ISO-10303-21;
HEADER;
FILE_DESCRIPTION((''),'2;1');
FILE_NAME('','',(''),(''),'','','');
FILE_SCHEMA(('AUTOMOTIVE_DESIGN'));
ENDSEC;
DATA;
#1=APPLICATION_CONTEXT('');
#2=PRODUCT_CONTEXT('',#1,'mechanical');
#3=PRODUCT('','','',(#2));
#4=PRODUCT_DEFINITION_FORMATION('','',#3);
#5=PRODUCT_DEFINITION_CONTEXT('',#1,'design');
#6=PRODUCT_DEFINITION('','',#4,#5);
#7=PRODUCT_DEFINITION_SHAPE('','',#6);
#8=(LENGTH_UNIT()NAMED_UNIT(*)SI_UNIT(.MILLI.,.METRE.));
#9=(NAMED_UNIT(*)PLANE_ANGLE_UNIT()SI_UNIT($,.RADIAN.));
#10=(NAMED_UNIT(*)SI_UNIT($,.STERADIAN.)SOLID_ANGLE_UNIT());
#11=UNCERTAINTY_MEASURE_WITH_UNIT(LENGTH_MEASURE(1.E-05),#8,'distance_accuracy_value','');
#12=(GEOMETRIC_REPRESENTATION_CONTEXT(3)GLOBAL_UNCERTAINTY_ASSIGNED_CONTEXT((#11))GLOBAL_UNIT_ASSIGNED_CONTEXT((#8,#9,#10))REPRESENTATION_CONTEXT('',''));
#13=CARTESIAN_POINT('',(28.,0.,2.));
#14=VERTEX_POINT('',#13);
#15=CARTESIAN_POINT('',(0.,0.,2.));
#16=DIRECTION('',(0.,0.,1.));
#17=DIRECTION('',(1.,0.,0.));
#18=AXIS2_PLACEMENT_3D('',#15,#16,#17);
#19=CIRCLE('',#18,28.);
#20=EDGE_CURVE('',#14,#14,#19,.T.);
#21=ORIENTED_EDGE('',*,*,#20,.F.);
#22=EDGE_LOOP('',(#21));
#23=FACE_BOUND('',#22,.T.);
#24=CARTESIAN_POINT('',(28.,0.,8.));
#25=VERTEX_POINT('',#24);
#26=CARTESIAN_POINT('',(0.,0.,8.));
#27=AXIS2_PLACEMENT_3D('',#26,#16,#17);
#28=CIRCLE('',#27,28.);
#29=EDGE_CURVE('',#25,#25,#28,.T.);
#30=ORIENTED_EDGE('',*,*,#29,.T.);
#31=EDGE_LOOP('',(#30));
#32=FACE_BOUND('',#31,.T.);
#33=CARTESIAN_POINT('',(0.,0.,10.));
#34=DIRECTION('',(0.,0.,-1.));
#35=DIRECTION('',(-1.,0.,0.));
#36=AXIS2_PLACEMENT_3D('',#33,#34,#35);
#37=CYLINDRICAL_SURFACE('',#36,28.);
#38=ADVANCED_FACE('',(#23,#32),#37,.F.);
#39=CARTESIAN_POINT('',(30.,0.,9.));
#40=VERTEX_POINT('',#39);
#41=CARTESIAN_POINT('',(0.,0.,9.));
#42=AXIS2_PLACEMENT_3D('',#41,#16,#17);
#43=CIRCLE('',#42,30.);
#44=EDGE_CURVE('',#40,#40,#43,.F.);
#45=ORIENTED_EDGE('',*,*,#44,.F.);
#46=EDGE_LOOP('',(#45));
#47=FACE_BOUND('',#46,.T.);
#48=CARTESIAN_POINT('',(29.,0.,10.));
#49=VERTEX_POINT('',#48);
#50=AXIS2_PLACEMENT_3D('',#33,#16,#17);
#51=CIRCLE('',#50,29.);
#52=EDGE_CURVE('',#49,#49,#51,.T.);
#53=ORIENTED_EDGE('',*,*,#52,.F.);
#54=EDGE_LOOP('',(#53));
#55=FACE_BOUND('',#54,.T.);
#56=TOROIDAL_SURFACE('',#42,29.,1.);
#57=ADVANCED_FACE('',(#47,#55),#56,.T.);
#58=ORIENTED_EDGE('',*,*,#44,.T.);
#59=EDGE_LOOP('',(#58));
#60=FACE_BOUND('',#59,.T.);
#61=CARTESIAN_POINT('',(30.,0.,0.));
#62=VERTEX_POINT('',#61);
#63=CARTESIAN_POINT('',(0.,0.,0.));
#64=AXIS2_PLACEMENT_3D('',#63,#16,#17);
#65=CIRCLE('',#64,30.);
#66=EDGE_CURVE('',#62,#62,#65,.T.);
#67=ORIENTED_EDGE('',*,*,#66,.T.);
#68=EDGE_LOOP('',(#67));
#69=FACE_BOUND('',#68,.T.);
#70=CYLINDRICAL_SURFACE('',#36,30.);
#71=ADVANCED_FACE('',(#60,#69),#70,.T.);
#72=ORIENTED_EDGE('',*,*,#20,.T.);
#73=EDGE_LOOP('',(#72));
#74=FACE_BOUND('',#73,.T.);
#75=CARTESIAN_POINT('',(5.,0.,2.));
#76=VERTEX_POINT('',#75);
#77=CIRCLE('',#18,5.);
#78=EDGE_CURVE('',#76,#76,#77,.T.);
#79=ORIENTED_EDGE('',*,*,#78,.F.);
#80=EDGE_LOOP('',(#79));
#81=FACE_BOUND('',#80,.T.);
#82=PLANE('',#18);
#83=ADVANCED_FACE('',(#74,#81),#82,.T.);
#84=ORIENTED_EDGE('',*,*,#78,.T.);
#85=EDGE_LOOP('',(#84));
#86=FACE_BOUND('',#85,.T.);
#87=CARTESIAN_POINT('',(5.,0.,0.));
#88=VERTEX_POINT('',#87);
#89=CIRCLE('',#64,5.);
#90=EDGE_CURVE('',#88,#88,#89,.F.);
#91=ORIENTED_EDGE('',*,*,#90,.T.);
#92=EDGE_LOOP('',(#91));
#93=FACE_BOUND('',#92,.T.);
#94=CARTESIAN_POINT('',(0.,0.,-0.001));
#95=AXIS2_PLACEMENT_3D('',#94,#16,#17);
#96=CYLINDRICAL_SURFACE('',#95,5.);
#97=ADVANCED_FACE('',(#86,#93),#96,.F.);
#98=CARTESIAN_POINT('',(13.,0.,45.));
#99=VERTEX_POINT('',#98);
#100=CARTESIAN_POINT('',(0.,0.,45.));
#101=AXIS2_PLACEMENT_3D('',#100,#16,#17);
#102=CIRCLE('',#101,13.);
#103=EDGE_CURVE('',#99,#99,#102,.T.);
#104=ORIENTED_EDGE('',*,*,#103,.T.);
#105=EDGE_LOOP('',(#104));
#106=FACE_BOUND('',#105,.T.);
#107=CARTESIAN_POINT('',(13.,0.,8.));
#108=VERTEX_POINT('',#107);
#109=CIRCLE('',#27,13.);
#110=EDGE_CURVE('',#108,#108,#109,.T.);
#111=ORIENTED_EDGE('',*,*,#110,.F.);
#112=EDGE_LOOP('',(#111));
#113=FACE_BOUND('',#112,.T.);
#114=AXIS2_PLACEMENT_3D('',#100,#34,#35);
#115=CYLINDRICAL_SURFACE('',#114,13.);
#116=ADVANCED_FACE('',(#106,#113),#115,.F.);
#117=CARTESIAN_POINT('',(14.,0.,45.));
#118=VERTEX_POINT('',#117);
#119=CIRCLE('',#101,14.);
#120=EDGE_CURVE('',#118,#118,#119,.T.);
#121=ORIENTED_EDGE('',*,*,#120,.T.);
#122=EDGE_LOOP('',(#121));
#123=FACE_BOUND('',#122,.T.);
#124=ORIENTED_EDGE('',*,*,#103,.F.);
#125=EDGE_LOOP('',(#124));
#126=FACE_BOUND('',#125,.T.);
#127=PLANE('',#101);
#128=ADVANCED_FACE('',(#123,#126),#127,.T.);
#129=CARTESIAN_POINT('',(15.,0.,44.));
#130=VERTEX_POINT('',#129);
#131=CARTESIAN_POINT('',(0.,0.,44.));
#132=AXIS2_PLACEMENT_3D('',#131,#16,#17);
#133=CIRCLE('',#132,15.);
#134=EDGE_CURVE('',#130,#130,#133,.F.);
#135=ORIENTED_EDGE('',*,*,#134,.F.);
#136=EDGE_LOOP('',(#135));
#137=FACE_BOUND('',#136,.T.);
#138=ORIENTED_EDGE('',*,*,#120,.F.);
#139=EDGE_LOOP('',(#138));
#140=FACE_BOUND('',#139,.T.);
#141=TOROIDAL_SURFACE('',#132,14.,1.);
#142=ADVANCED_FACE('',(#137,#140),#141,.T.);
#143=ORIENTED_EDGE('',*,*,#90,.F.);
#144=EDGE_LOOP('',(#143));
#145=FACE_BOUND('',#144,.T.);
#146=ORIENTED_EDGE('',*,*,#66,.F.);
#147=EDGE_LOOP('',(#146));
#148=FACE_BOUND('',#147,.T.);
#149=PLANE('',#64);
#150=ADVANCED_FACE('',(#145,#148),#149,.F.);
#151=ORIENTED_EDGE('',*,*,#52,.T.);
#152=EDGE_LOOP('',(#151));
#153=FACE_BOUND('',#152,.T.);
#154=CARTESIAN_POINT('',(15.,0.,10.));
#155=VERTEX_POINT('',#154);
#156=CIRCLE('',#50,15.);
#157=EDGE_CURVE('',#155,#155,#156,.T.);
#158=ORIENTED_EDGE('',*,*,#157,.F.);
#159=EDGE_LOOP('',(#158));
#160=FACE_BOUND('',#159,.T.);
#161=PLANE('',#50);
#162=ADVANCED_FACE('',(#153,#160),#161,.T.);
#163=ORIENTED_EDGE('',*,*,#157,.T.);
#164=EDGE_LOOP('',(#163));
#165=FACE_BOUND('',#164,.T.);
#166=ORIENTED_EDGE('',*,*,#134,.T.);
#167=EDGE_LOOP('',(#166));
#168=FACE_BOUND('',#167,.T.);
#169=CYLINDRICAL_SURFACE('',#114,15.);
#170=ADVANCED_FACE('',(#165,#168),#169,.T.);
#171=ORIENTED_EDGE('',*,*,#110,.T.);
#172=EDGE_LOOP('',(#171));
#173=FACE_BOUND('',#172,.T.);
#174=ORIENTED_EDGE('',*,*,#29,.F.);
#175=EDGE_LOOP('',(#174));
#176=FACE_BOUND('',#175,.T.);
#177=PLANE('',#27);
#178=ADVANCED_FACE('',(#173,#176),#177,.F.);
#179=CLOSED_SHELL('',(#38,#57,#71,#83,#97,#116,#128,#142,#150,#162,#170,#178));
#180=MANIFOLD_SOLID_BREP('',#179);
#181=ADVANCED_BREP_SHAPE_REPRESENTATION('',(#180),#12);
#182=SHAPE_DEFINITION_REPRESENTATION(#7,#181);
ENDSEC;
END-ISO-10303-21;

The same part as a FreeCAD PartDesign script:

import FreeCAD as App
import Part
import Sketcher
from FreeCAD import Vector
Q = App.Units.Quantity


def edges_at(feature, points):
    """Names of the edges that pass closest to the given points."""
    edges = feature.Shape.Edges
    near = lambda p: min(range(len(edges)), key=lambda i: edges[i].distToShape(Part.Vertex(*p))[0])
    return sorted({f"Edge{near(p) + 1}" for p in points})


def faces_at(feature, points):
    """Names of the faces that lie closest to the given points."""
    faces = feature.Shape.Faces
    near = lambda p: min(range(len(faces)), key=lambda i: faces[i].distToShape(Part.Vertex(*p))[0])
    return sorted({f"Face{near(p) + 1}" for p in points})

doc = App.newDocument("Part")
body = doc.addObject("PartDesign::Body", "Body")

sketch1 = body.newObject("Sketcher::SketchObject", "Sketch")
sketch1.AttachmentSupport = (doc.getObject("XY_Plane"), [""])
sketch1.MapMode = "FlatFace"
sketch1.addGeometry(Part.Circle(Vector(0, 0, 0), Vector(0, 0, 1), 30), False)
sketch1.addConstraint(Sketcher.Constraint("Coincident", 0, 3, -1, 1))
sketch1.addConstraint(Sketcher.Constraint("Diameter", 0, Q("60 mm")))
pad1 = body.newObject("PartDesign::Pad", "Pad")
pad1.Profile = sketch1
pad1.Length = 10

sketch2 = body.newObject("Sketcher::SketchObject", "Sketch001")
sketch2.AttachmentSupport = (doc.getObject("XY_Plane"), [""])
sketch2.MapMode = "FlatFace"
sketch2.AttachmentOffset = App.Placement(Vector(0, 0, 10), App.Rotation())
sketch2.addGeometry(Part.Circle(Vector(0, 0, 0), Vector(0, 0, 1), 15), False)
sketch2.addConstraint(Sketcher.Constraint("Coincident", 0, 3, -1, 1))
sketch2.addConstraint(Sketcher.Constraint("Diameter", 0, Q("30 mm")))
pad2 = body.newObject("PartDesign::Pad", "Pad001")
pad2.Profile = sketch2
pad2.Length = 35
doc.recompute()

thickness = body.newObject("PartDesign::Thickness", "Thickness")
thickness.Base = (pad2, faces_at(pad2, [(0, 0, 45)]))
thickness.Value = 2
thickness.Reversed = True
thickness.Join = "Intersection"
doc.recompute()

fillet = body.newObject("PartDesign::Fillet", "Fillet")
fillet.Base = (thickness, edges_at(thickness, [(-30, 0, 10)]))
fillet.Radius = 1
doc.recompute()

fillet2 = body.newObject("PartDesign::Fillet", "Fillet001")
fillet2.Base = (fillet, edges_at(fillet, [(-15, 0, 45)]))
fillet2.Radius = 1

sketch3 = body.newObject("Sketcher::SketchObject", "Sketch002")
sketch3.AttachmentSupport = (doc.getObject("XY_Plane"), [""])
sketch3.MapMode = "FlatFace"
sketch3.AttachmentOffset = App.Placement(Vector(0, 0, 2), App.Rotation())
sketch3.addGeometry(Part.Circle(Vector(0, 0, 0), Vector(0, 0, 1), 5), False)
sketch3.addConstraint(Sketcher.Constraint("Coincident", 0, 3, -1, 1))
sketch3.addConstraint(Sketcher.Constraint("Diameter", 0, Q("10 mm")))
pocket1 = body.newObject("PartDesign::Pocket", "Pocket")
pocket1.Profile = sketch3
pocket1.Type = "UpToFirst"

doc.recompute()
